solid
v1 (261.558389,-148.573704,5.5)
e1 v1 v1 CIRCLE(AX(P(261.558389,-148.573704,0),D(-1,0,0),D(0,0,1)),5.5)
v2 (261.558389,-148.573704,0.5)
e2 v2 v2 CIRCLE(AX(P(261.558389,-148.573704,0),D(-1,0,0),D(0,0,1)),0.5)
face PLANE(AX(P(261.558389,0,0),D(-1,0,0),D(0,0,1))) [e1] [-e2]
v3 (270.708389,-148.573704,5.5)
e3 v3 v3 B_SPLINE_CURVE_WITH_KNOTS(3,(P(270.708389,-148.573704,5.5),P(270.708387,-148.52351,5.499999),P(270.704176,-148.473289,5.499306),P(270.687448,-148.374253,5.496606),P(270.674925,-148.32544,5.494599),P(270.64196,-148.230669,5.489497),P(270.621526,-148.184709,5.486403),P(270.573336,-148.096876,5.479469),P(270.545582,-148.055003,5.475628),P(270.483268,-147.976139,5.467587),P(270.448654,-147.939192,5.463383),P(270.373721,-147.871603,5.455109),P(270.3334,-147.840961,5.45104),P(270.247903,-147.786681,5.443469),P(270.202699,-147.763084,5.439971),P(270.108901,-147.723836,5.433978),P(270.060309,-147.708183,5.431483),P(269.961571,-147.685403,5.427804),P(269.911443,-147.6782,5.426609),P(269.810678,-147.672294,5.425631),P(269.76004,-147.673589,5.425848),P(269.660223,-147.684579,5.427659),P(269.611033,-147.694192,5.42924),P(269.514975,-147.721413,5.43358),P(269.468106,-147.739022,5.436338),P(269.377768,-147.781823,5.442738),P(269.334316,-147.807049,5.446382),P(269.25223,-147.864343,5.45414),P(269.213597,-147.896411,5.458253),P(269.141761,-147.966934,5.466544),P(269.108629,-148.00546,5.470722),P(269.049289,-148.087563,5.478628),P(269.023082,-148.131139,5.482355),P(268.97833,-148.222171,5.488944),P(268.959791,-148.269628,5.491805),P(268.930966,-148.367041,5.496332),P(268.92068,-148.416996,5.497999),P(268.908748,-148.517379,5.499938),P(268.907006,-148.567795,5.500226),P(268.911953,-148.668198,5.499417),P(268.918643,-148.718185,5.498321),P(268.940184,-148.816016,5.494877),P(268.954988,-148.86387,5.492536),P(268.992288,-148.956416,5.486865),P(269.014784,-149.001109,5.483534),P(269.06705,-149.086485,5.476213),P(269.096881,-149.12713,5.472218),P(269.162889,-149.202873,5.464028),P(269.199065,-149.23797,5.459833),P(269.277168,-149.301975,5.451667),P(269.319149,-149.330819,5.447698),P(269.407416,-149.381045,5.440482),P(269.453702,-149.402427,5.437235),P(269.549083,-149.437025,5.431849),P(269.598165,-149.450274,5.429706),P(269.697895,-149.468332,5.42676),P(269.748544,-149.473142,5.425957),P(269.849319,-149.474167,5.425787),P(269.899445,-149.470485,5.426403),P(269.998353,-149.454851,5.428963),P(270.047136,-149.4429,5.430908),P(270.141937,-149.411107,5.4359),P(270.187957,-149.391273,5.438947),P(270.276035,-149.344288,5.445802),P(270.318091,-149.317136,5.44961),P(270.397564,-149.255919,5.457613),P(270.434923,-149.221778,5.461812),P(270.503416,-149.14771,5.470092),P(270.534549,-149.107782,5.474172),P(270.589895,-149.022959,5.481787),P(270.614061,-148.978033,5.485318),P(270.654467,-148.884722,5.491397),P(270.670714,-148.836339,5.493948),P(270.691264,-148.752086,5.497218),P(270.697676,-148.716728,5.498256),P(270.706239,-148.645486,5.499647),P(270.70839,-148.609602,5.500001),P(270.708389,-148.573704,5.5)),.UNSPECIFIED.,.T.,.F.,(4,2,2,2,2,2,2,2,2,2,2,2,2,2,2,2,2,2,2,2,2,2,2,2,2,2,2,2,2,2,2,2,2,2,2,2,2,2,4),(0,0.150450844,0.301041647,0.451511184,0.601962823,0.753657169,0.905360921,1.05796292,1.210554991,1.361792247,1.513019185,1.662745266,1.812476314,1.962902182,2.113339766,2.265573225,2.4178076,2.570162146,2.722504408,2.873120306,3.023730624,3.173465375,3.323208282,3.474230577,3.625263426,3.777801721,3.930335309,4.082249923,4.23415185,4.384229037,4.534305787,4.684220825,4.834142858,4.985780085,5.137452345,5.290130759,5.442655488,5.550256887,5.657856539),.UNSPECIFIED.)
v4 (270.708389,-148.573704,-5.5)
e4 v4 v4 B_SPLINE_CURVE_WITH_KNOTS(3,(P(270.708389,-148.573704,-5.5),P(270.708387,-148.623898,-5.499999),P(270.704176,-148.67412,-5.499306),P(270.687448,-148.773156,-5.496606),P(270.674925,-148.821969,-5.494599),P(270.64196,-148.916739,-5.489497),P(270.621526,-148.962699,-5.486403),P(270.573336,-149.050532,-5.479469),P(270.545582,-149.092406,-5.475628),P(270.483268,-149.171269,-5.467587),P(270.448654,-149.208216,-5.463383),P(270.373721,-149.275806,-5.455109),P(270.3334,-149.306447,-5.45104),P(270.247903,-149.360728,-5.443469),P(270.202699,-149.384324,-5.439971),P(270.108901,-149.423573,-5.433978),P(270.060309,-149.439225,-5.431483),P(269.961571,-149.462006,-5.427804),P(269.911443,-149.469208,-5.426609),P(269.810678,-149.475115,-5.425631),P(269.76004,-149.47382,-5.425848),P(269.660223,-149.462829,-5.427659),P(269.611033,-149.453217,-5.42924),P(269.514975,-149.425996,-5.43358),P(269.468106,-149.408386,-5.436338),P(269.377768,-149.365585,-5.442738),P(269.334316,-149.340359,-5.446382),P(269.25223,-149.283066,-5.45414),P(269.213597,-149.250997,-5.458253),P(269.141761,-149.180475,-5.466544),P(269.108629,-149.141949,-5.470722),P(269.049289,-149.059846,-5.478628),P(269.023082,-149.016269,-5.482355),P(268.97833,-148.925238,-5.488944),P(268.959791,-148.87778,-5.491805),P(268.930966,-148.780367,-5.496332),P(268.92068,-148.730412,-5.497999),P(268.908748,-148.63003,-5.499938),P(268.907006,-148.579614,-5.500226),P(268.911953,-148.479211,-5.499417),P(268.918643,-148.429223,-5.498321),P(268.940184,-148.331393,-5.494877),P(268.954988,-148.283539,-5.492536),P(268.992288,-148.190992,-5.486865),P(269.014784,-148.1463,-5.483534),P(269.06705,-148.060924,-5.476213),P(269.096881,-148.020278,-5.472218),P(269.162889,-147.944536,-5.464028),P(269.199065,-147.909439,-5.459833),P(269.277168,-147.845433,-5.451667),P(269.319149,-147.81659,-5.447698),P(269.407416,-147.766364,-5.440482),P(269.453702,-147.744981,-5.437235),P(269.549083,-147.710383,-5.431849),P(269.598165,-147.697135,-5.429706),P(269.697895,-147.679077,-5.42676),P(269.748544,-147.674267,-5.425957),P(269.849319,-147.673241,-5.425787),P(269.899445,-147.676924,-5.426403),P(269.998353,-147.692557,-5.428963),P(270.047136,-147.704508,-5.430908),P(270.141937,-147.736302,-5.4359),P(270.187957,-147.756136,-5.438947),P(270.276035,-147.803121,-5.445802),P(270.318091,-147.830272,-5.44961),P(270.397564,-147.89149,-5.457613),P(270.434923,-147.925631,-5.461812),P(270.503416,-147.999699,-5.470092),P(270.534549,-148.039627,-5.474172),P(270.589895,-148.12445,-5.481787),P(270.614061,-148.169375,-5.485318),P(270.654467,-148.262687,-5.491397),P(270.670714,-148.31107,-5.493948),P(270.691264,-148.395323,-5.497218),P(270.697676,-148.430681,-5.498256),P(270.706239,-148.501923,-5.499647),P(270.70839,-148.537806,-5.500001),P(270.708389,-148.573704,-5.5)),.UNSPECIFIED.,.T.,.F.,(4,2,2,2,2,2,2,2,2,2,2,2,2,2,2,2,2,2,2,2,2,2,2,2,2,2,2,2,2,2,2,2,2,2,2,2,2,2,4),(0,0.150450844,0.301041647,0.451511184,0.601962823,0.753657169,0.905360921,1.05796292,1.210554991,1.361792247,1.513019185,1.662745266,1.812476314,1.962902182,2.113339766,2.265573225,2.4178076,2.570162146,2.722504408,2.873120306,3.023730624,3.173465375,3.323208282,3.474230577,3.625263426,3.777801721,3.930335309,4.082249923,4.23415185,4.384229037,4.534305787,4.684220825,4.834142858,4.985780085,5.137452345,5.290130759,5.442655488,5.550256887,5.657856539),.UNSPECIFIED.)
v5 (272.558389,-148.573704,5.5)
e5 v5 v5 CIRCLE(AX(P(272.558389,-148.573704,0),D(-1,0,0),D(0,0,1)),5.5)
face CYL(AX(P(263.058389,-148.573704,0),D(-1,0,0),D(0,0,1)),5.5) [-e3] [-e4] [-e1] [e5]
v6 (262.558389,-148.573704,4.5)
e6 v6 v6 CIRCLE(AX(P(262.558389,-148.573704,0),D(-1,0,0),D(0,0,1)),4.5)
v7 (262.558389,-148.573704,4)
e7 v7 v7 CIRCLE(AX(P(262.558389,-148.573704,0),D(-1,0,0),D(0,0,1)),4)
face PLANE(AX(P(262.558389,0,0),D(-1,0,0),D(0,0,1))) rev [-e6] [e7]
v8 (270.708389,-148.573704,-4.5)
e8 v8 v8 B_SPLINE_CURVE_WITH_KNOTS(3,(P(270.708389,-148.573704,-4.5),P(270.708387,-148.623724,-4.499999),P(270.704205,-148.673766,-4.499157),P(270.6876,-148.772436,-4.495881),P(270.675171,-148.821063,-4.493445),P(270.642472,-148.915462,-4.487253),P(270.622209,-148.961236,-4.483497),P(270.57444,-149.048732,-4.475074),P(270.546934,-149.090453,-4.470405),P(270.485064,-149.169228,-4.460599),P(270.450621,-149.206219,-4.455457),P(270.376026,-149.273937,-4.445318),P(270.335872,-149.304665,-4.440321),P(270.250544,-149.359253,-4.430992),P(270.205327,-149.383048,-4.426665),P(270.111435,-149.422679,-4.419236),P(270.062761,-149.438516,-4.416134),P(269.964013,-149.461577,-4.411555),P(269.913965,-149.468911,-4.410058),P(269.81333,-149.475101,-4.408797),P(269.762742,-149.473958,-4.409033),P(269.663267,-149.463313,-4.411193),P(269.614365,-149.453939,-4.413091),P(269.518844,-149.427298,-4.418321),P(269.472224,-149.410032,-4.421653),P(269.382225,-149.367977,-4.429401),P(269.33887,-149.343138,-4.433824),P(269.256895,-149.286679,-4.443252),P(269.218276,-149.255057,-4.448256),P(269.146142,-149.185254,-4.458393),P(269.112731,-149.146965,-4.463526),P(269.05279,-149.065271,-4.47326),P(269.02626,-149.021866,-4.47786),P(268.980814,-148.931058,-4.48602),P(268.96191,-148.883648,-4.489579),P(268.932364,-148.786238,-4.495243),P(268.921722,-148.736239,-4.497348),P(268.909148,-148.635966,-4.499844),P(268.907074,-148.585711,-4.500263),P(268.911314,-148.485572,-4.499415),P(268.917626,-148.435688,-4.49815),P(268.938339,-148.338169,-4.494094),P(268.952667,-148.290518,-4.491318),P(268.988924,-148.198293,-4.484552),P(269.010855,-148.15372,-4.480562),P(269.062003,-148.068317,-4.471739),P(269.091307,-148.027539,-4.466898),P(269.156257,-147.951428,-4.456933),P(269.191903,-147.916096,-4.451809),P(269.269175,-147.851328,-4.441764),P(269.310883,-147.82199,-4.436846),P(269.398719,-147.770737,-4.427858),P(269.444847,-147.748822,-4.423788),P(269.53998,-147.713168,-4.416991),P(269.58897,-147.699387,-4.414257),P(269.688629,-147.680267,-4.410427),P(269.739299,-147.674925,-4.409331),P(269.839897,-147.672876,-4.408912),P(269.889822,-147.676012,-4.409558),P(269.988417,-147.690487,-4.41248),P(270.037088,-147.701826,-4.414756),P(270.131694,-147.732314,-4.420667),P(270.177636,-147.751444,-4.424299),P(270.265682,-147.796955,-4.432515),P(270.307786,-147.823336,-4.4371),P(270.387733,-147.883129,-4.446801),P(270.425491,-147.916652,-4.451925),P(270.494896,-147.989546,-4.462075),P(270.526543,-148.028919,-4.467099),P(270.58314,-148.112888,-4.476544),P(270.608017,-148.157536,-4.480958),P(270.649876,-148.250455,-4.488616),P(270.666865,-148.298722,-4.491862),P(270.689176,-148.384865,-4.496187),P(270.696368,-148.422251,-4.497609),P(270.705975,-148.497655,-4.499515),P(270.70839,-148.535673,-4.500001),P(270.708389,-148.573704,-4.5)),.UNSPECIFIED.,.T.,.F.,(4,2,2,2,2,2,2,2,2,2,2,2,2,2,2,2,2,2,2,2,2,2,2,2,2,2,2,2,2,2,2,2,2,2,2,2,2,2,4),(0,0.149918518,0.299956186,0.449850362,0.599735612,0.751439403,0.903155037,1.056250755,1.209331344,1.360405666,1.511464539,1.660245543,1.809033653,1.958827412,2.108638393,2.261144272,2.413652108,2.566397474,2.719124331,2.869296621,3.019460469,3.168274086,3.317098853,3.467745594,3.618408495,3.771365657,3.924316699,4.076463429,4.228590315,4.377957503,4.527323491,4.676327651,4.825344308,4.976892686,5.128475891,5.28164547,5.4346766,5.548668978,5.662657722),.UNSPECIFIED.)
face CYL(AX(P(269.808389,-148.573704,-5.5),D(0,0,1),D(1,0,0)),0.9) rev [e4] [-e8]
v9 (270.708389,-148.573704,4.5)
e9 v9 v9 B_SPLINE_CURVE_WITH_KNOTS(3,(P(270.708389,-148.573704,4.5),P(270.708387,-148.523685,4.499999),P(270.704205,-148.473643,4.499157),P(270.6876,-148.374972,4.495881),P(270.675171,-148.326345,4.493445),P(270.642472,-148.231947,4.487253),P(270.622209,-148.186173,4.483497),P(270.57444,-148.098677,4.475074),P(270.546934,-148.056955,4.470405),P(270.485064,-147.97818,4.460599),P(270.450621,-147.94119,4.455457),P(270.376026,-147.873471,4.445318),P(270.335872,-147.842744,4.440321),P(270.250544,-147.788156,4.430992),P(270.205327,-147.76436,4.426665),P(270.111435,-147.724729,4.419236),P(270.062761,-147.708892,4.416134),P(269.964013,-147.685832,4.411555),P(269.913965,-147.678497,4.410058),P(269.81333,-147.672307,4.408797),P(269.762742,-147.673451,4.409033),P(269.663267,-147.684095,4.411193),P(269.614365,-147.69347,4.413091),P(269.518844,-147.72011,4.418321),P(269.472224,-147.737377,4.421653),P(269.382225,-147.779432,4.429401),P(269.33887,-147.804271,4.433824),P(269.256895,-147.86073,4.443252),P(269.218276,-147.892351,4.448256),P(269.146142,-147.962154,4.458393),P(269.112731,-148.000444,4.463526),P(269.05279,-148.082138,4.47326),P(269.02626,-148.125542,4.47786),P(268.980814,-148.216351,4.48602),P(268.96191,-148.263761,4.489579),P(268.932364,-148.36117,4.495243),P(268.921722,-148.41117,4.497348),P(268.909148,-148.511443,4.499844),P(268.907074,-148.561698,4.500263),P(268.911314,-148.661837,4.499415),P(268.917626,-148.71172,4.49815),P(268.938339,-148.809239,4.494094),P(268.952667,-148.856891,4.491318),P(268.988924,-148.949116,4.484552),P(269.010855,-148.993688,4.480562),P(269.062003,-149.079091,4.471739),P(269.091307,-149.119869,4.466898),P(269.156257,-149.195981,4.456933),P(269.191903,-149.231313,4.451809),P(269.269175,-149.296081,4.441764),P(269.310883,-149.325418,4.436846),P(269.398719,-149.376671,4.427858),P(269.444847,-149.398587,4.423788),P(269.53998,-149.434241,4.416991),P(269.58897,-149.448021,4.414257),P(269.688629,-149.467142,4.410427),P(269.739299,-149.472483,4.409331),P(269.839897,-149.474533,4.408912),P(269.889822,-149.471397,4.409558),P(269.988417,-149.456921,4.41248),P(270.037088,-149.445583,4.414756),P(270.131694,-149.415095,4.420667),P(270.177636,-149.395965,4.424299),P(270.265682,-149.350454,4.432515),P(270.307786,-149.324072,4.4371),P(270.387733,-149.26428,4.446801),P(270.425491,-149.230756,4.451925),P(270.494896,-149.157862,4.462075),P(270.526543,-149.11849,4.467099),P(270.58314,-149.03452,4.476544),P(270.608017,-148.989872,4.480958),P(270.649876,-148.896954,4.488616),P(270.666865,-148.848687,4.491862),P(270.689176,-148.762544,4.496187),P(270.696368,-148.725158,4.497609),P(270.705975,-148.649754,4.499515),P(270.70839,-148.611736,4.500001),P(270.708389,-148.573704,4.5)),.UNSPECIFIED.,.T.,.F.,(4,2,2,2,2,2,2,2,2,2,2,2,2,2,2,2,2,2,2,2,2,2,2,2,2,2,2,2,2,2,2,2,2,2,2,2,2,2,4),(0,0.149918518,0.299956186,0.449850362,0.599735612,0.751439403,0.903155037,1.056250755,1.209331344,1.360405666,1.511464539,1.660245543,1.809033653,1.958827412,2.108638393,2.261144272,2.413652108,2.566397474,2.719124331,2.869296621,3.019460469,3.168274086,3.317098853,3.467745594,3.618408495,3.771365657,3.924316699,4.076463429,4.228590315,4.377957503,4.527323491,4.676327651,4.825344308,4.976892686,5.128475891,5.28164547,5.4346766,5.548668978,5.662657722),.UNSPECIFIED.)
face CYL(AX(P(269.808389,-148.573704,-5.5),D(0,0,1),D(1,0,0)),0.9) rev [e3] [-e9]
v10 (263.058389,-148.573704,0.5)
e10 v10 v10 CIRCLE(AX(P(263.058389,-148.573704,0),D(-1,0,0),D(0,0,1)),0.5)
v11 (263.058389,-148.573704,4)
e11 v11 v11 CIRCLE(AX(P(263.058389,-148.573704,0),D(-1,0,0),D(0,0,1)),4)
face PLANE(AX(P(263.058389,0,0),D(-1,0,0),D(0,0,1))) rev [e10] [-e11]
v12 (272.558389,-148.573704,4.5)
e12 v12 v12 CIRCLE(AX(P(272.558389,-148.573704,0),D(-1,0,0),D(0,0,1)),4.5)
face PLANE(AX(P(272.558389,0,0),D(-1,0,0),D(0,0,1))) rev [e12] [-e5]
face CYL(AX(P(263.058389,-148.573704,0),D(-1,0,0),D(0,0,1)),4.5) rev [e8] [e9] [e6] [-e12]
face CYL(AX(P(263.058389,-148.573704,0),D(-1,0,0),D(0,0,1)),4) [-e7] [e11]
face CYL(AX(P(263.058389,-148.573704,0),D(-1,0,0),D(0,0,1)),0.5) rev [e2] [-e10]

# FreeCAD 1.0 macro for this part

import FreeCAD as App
import Part
import Sketcher
from FreeCAD import Vector


def add_polygon(sketch, points):
    """Adds a closed chain of lines whose ends are joined by coincident constraints."""
    first, n = sketch.GeometryCount, len(points)
    for a, b in zip(points, points[1:] + points[:1]):
        sketch.addGeometry(Part.LineSegment(App.Vector(*a, 0), App.Vector(*b, 0)), False)
    for i in range(n):
        sketch.addConstraint(Sketcher.Constraint("Coincident", first + i, 2, first + (i + 1) % n, 1))

doc = App.newDocument("Part")
body = doc.addObject("PartDesign::Body", "Body")

# Sketch on XY plane
sketch1 = body.newObject("Sketcher::SketchObject", "Sketch")
sketch1.AttachmentSupport = (doc.getObject("XY_Plane"), [""])
sketch1.MapMode = "FlatFace"
add_polygon(sketch1, [(262.6, -144.6), (262.6, -144.1), (272.6, -144.1), (272.6, -143.1), (261.6, -143.1), (261.6, -148.1), (263.1, -148.1), (263.1, -144.6)])  # lines 0-7
sketch1.addGeometry(Part.LineSegment(Vector(261.6, -148.6, 0), Vector(272.6, -148.6, 0)), True)  # axis
sketch1.addConstraint([
    Sketcher.Constraint("Vertical", 0),
    Sketcher.Constraint("Horizontal", 1),
    Sketcher.Constraint("Vertical", 2),
    Sketcher.Constraint("Horizontal", 3),
    Sketcher.Constraint("Vertical", 4),
    Sketcher.Constraint("Horizontal", 5),
    Sketcher.Constraint("Vertical", 6),
    Sketcher.Constraint("Horizontal", 7),
    Sketcher.Constraint("Horizontal", 8),
    Sketcher.Constraint("Vertical", 4, 2, 8, 1),
    Sketcher.Constraint("Vertical", 2, 2, 8, 2),
    Sketcher.Constraint("Equal", 7, 0),
    Sketcher.Constraint("DistanceX", 1, 1, 1, 2, 10.0),
    Sketcher.Constraint("DistanceX", 3, 2, 3, 1, 11.0),
    Sketcher.Constraint("DistanceY", 2, 1, 2, 2, 1.0),
    Sketcher.Constraint("DistanceY", 4, 2, 4, 1, 5.0),
    Sketcher.Constraint("DistanceX", 5, 1, 5, 2, 1.5),
    Sketcher.Constraint("DistanceY", 8, 1, 7, 2, 4.0),
    Sketcher.Constraint("DistanceX", -1, 1, 0, 2, 262.558389),
    Sketcher.Constraint("DistanceY", 0, 2, -1, 1, 144.073704),
])
revolution = body.newObject("PartDesign::Revolution", "Revolution")
revolution.Profile = sketch1
revolution.ReferenceAxis = (sketch1, ["Axis0"])
revolution.Angle = 360

# Sketch on XY plane
sketch2 = body.newObject("Sketcher::SketchObject", "Sketch001")
sketch2.AttachmentSupport = (doc.getObject("XY_Plane"), [""])
sketch2.MapMode = "FlatFace"
sketch2.addGeometry(Part.Circle(Vector(269.8, -148.6, 0), Vector(0, 0, 1), 0.9), False)
sketch2.addConstraint([
    Sketcher.Constraint("Diameter", 0, 1.8),
    Sketcher.Constraint("DistanceX", -1, 1, 0, 3, 269.808389),
    Sketcher.Constraint("DistanceY", 0, 3, -1, 1, 148.573704),
])
pocket1 = body.newObject("PartDesign::Pocket", "Pocket")
pocket1.Profile = sketch2
pocket1.Type = "ThroughAll"
pocket1.Midplane = True

doc.recompute()
